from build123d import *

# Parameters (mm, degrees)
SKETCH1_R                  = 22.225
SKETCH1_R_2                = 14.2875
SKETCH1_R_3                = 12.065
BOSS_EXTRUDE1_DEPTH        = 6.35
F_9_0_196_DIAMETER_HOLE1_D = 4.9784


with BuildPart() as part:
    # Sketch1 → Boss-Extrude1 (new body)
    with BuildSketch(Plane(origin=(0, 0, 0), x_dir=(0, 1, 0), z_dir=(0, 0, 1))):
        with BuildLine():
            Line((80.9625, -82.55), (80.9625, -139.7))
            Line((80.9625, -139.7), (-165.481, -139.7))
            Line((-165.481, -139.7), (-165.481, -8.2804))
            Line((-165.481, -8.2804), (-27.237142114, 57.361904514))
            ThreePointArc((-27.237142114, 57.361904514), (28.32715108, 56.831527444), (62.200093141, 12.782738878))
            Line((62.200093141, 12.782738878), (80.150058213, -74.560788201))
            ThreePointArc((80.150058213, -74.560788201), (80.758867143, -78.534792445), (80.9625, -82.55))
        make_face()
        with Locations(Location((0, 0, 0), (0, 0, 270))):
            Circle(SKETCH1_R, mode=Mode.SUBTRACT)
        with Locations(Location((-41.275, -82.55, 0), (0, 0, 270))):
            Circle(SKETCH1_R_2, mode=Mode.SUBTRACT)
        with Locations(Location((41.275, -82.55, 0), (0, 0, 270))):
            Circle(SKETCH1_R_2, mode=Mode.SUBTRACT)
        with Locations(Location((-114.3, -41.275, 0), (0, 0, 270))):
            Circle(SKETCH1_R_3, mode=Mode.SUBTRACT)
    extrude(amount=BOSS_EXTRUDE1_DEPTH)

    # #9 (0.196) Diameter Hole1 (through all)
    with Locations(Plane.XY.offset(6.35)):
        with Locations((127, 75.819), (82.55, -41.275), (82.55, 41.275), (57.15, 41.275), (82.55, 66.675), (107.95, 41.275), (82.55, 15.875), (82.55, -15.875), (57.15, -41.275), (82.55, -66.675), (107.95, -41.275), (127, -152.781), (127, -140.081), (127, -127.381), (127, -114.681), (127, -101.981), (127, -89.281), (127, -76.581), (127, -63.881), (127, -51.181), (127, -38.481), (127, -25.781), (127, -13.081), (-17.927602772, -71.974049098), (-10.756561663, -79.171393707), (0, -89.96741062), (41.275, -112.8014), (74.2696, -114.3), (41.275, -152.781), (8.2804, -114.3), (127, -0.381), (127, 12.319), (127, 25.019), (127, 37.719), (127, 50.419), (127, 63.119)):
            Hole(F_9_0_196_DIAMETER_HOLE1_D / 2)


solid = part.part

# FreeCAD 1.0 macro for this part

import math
import FreeCAD as App
import Part
import Sketcher
Q = App.Units.Quantity

doc = App.newDocument("Part")
body = doc.addObject("PartDesign::Body", "Body")

# Sketch on XY plane
sketch1 = body.newObject("Sketcher::SketchObject", "Sketch")
sketch1.AttachmentSupport = (doc.getObject("XY_Plane"), [""])
sketch1.MapMode = "FlatFace"
sketch1.addGeometry([
    Part.LineSegment(App.Vector(139.7, 80.9625, 0), App.Vector(82.55, 80.9625, 0)),  # 0
    Part.ArcOfCircle(Part.Circle(App.Vector(82.55, 41.275, 0), App.Vector(0, 0, 1), 39.6875), math.radians(90), math.radians(101.613164)),  # 1
    Part.LineSegment(App.Vector(74.560788, 80.150058, 0), App.Vector(-12.782739, 62.200093, 0)),  # 2
    Part.ArcOfCircle(Part.Circle(App.Vector(0, 0, 0), App.Vector(0, 0, 1), 63.5), math.radians(101.613164), math.radians(205.399761)),  # 3
    Part.LineSegment(App.Vector(-57.361905, -27.237142, 0), App.Vector(8.2804, -165.481, 0)),  # 4
    Part.LineSegment(App.Vector(8.2804, -165.481, 0), App.Vector(139.7, -165.481, 0)),  # 5
    Part.LineSegment(App.Vector(139.7, -165.481, 0), App.Vector(139.7, 80.9625, 0)),  # 6
    Part.Circle(App.Vector(82.55, 41.275, 0), App.Vector(0, 0, 1), 14.2875),  # 7
    Part.Circle(App.Vector(82.55, -41.275, 0), App.Vector(0, 0, 1), 14.2875),  # 8
    Part.Circle(App.Vector(41.275, -114.3, 0), App.Vector(0, 0, 1), 12.065),  # 9
    Part.Circle(App.Vector(0, 0, 0), App.Vector(0, 0, 1), 22.225),  # 10
], False)
sketch1.addConstraint([
    Sketcher.Constraint("Tangent", 0, 2, 1, 1),
    Sketcher.Constraint("Tangent", 1, 2, 2, 1),
    Sketcher.Constraint("Tangent", 2, 2, 3, 1),
    Sketcher.Constraint("Tangent", 3, 2, 4, 1),
    Sketcher.Constraint("Coincident", 4, 2, 5, 1),
    Sketcher.Constraint("Coincident", 5, 2, 6, 1),
    Sketcher.Constraint("Coincident", 6, 2, 0, 1),
    Sketcher.Constraint("Horizontal", 0),
    Sketcher.Constraint("Horizontal", 5),
    Sketcher.Constraint("Vertical", 6),
    Sketcher.Constraint("Coincident", 3, 3, -1, 1),
    Sketcher.Constraint("Coincident", 10, 3, -1, 1),
    Sketcher.Constraint("Coincident", 7, 3, 1, 3),
    Sketcher.Constraint("Equal", 7, 8),
    Sketcher.Constraint("Symmetric", 1, 3, 8, 3, -1),
    Sketcher.Constraint("Radius", 3, Q("2.5 in")),
    Sketcher.Constraint("Diameter", 9, Q("0.95 in")),
    Sketcher.Constraint("Diameter", 10, Q("1.75 in")),
    Sketcher.Constraint("Diameter", 7, Q("1.125 in")),
    Sketcher.Constraint("Radius", 1, Q("1.5625 in")),
    Sketcher.Constraint("DistanceX", 0, 2, 0, 1, Q("2.25 in")),
    Sketcher.Constraint("DistanceY", 9, 3, -1, 1, Q("4.5 in")),
    Sketcher.Constraint("DistanceX", -1, 1, 5, 2, Q("5.5 in")),
    Sketcher.Constraint("DistanceX", 5, 1, 5, 2, Q("5.174 in")),
    Sketcher.Constraint("DistanceY", 8, 3, 7, 3, Q("3.25 in")),
    Sketcher.Constraint("DistanceY", 4, 2, 8, 3, Q("4.89 in")),
    Sketcher.Constraint("DistanceX", -1, 1, 9, 3, Q("1.625 in")),
])
pad1 = body.newObject("PartDesign::Pad", "Pad")
pad1.Profile = sketch1
pad1.Length = Q("0.25 in")

# Sketch on XY plane
sketch2 = body.newObject("Sketcher::SketchObject", "Sketch001")
sketch2.AttachmentSupport = (doc.getObject("XY_Plane"), [""])
sketch2.MapMode = "FlatFace"
sketch2.AttachmentOffset = App.Placement(App.Vector(0, 0, 0.25 * 25.4), App.Rotation())
sketch2.addGeometry([
    Part.Circle(App.Vector(127, 75.819, 0), App.Vector(0, 0, 1), 2.4892),  # 0
    Part.Circle(App.Vector(82.55, -41.275, 0), App.Vector(0, 0, 1), 2.4892),  # 1
    Part.Circle(App.Vector(82.55, 41.275, 0), App.Vector(0, 0, 1), 2.4892),  # 2
    Part.Circle(App.Vector(57.15, 41.275, 0), App.Vector(0, 0, 1), 2.4892),  # 3
    Part.Circle(App.Vector(82.55, 66.675, 0), App.Vector(0, 0, 1), 2.4892),  # 4
    Part.Circle(App.Vector(107.95, 41.275, 0), App.Vector(0, 0, 1), 2.4892),  # 5
    Part.Circle(App.Vector(82.55, 15.875, 0), App.Vector(0, 0, 1), 2.4892),  # 6
    Part.Circle(App.Vector(82.55, -15.875, 0), App.Vector(0, 0, 1), 2.4892),  # 7
    Part.Circle(App.Vector(57.15, -41.275, 0), App.Vector(0, 0, 1), 2.4892),  # 8
    Part.Circle(App.Vector(82.55, -66.675, 0), App.Vector(0, 0, 1), 2.4892),  # 9
    Part.Circle(App.Vector(107.95, -41.275, 0), App.Vector(0, 0, 1), 2.4892),  # 10
    Part.Circle(App.Vector(127, -152.781, 0), App.Vector(0, 0, 1), 2.4892),  # 11
    Part.Circle(App.Vector(127, -140.081, 0), App.Vector(0, 0, 1), 2.4892),  # 12
    Part.Circle(App.Vector(127, -127.381, 0), App.Vector(0, 0, 1), 2.4892),  # 13
    Part.Circle(App.Vector(127, -114.681, 0), App.Vector(0, 0, 1), 2.4892),  # 14
    Part.Circle(App.Vector(127, -101.981, 0), App.Vector(0, 0, 1), 2.4892),  # 15
    Part.Circle(App.Vector(127, -89.281, 0), App.Vector(0, 0, 1), 2.4892),  # 16
    Part.Circle(App.Vector(127, -76.581, 0), App.Vector(0, 0, 1), 2.4892),  # 17
    Part.Circle(App.Vector(127, -63.881, 0), App.Vector(0, 0, 1), 2.4892),  # 18
    Part.Circle(App.Vector(127, -51.181, 0), App.Vector(0, 0, 1), 2.4892),  # 19
    Part.Circle(App.Vector(127, -38.481, 0), App.Vector(0, 0, 1), 2.4892),  # 20
    Part.Circle(App.Vector(127, -25.781, 0), App.Vector(0, 0, 1), 2.4892),  # 21
    Part.Circle(App.Vector(127, -13.081, 0), App.Vector(0, 0, 1), 2.4892),  # 22
    Part.Circle(App.Vector(-17.927603, -71.974049, 0), App.Vector(0, 0, 1), 2.4892),  # 23
    Part.Circle(App.Vector(-10.756562, -79.171394, 0), App.Vector(0, 0, 1), 2.4892),  # 24
    Part.Circle(App.Vector(0, -89.967411, 0), App.Vector(0, 0, 1), 2.4892),  # 25
    Part.Circle(App.Vector(41.275, -112.8014, 0), App.Vector(0, 0, 1), 2.4892),  # 26
    Part.Circle(App.Vector(74.2696, -114.3, 0), App.Vector(0, 0, 1), 2.4892),  # 27
    Part.Circle(App.Vector(41.275, -152.781, 0), App.Vector(0, 0, 1), 2.4892),  # 28
    Part.Circle(App.Vector(8.2804, -114.3, 0), App.Vector(0, 0, 1), 2.4892),  # 29
    Part.Circle(App.Vector(127, -0.381, 0), App.Vector(0, 0, 1), 2.4892),  # 30
    Part.Circle(App.Vector(127, 12.319, 0), App.Vector(0, 0, 1), 2.4892),  # 31
    Part.Circle(App.Vector(127, 25.019, 0), App.Vector(0, 0, 1), 2.4892),  # 32
    Part.Circle(App.Vector(127, 37.719, 0), App.Vector(0, 0, 1), 2.4892),  # 33
    Part.Circle(App.Vector(127, 50.419, 0), App.Vector(0, 0, 1), 2.4892),  # 34
    Part.Circle(App.Vector(127, 63.119, 0), App.Vector(0, 0, 1), 2.4892),  # 35
], False)
sketch2.addConstraint([
    Sketcher.Constraint("Equal", 0, 1),
    Sketcher.Constraint("Equal", 1, 2),
    Sketcher.Constraint("Equal", 2, 3),
    Sketcher.Constraint("Equal", 3, 4),
    Sketcher.Constraint("Equal", 4, 5),
    Sketcher.Constraint("Equal", 5, 6),
    Sketcher.Constraint("Equal", 6, 7),
    Sketcher.Constraint("Equal", 7, 8),
    Sketcher.Constraint("Equal", 8, 9),
    Sketcher.Constraint("Equal", 9, 10),
    Sketcher.Constraint("Equal", 10, 11),
    Sketcher.Constraint("Equal", 11, 12),
    Sketcher.Constraint("Equal", 12, 13),
    Sketcher.Constraint("Equal", 13, 14),
    Sketcher.Constraint("Equal", 14, 15),
    Sketcher.Constraint("Equal", 15, 16),
    Sketcher.Constraint("Equal", 16, 17),
    Sketcher.Constraint("Equal", 17, 18),
    Sketcher.Constraint("Equal", 18, 19),
    Sketcher.Constraint("Equal", 19, 20),
    Sketcher.Constraint("Equal", 20, 21),
    Sketcher.Constraint("Equal", 21, 22),
    Sketcher.Constraint("Equal", 22, 23),
    Sketcher.Constraint("Equal", 23, 24),
    Sketcher.Constraint("Equal", 24, 25),
    Sketcher.Constraint("Equal", 25, 26),
    Sketcher.Constraint("Equal", 26, 27),
    Sketcher.Constraint("Equal", 27, 28),
    Sketcher.Constraint("Equal", 28, 29),
    Sketcher.Constraint("Equal", 29, 30),
    Sketcher.Constraint("Equal", 30, 31),
    Sketcher.Constraint("Equal", 31, 32),
    Sketcher.Constraint("Equal", 32, 33),
    Sketcher.Constraint("Equal", 33, 34),
    Sketcher.Constraint("Equal", 34, 35),
    Sketcher.Constraint("Symmetric", 1, 3, 2, 3, -1),
    Sketcher.Constraint("Symmetric", 6, 3, 7, 3, -1),
    Sketcher.Constraint("Symmetric", 3, 3, 8, 3, -1),
    Sketcher.Constraint("Symmetric", 4, 3, 9, 3, -1),
    Sketcher.Constraint("Symmetric", 5, 3, 10, 3, -1),
    Sketcher.Constraint("PointOnObject", 25, 3, -2),
    Sketcher.Constraint("Horizontal", 2, 3, 3, 3),
    Sketcher.Constraint("Horizontal", 3, 3, 5, 3),
    Sketcher.Constraint("Horizontal", 11, 3, 28, 3),
    Sketcher.Constraint("Horizontal", 27, 3, 29, 3),
    Sketcher.Constraint("Vertical", 2, 3, 4, 3),
    Sketcher.Constraint("Vertical", 4, 3, 6, 3),
    Sketcher.Constraint("Vertical", 0, 3, 11, 3),
    Sketcher.Constraint("Vertical", 11, 3, 12, 3),
    Sketcher.Constraint("Vertical", 12, 3, 13, 3),
    Sketcher.Constraint("Vertical", 13, 3, 14, 3),
    Sketcher.Constraint("Vertical", 14, 3, 15, 3),
    Sketcher.Constraint("Vertical", 15, 3, 16, 3),
    Sketcher.Constraint("Vertical", 16, 3, 17, 3),
    Sketcher.Constraint("Vertical", 17, 3, 18, 3),
    Sketcher.Constraint("Vertical", 18, 3, 19, 3),
    Sketcher.Constraint("Vertical", 19, 3, 20, 3),
    Sketcher.Constraint("Vertical", 20, 3, 21, 3),
    Sketcher.Constraint("Vertical", 21, 3, 22, 3),
    Sketcher.Constraint("Vertical", 26, 3, 28, 3),
    Sketcher.Constraint("Vertical", 22, 3, 30, 3),
    Sketcher.Constraint("Vertical", 30, 3, 31, 3),
    Sketcher.Constraint("Vertical", 31, 3, 32, 3),
    Sketcher.Constraint("Vertical", 32, 3, 33, 3),
    Sketcher.Constraint("Vertical", 33, 3, 34, 3),
    Sketcher.Constraint("Vertical", 34, 3, 35, 3),
    Sketcher.Constraint("Diameter", 0, Q("0.196 in")),
    Sketcher.Constraint("DistanceX", -1, 1, 0, 3, Q("5 in")),
    Sketcher.Constraint("DistanceX", 3, 3, 2, 3, Q("1 in")),
    Sketcher.Constraint("DistanceY", 2, 3, 4, 3, Q("1 in")),
    Sketcher.Constraint("DistanceX", 2, 3, 5, 3, Q("1 in")),
    Sketcher.Constraint("DistanceY", 6, 3, 2, 3, Q("1 in")),
    Sketcher.Constraint("DistanceY", 11, 3, 13, 3, Q("1 in")),
    Sketcher.Constraint("DistanceY", 12, 3, 14, 3, Q("1 in")),
    Sketcher.Constraint("DistanceY", 13, 3, 15, 3, Q("1 in")),
    Sketcher.Constraint("DistanceY", 14, 3, 16, 3, Q("1 in")),
    Sketcher.Constraint("DistanceY", 15, 3, 17, 3, Q("1 in")),
    Sketcher.Constraint("DistanceY", 16, 3, 18, 3, Q("1 in")),
    Sketcher.Constraint("DistanceY", 17, 3, 19, 3, Q("1 in")),
    Sketcher.Constraint("DistanceY", 18, 3, 20, 3, Q("1 in")),
    Sketcher.Constraint("DistanceY", 19, 3, 21, 3, Q("1 in")),
    Sketcher.Constraint("DistanceY", 20, 3, 22, 3, Q("1 in")),
    Sketcher.Constraint("DistanceY", 21, 3, 30, 3, Q("1 in")),
    Sketcher.Constraint("DistanceY", 22, 3, 31, 3, Q("1 in")),
    Sketcher.Constraint("DistanceY", 30, 3, 32, 3, Q("1 in")),
    Sketcher.Constraint("DistanceY", 31, 3, 33, 3, Q("1 in")),
    Sketcher.Constraint("DistanceY", 32, 3, 34, 3, Q("1 in")),
    Sketcher.Constraint("DistanceY", 34, 3, 0, 3, Q("1 in")),
    Sketcher.Constraint("DistanceY", 33, 3, 35, 3, Q("1 in")),
    Sketcher.Constraint("DistanceY", 27, 3, -1, 1, Q("4.5 in")),
    Sketcher.Constraint("DistanceY", 11, 3, 12, 3, Q("0.5 in")),
    Sketcher.Constraint("DistanceX", -1, 1, 1, 3, Q("3.25 in")),
    Sketcher.Constraint("DistanceY", 1, 3, 0, 3, Q("4.61 in")),
    Sketcher.Constraint("DistanceY", 2, 3, 0, 3, Q("1.36 in")),
    Sketcher.Constraint("DistanceX", -1, 1, 26, 3, Q("1.625 in")),
    Sketcher.Constraint("DistanceY", 26, 3, -1, 1, Q("4.441 in")),
    Sketcher.Constraint("DistanceX", -1, 1, 27, 3, Q("2.924 in")),
    Sketcher.Constraint("DistanceX", -1, 1, 29, 3, Q("0.326 in")),
    Sketcher.Constraint("DistanceY", 25, 3, 23, 3, Q("0.7084001 in")),
    Sketcher.Constraint("DistanceY", 23, 3, -1, 1, Q("71.974049 mm")),
    Sketcher.Constraint("DistanceX", 24, 3, -1, 1, Q("10.756562 mm")),
    Sketcher.Constraint("DistanceX", 23, 3, 24, 3, Q("7.171041 mm")),
    Sketcher.Constraint("DistanceY", 24, 3, -1, 1, Q("79.171394 mm")),
])
doc.recompute()
hole = body.newObject("PartDesign::Hole", "Hole")
hole.Profile = sketch2
hole.ThreadType = "None"
hole.Diameter = Q("0.196 in")
hole.DepthType = "ThroughAll"

doc.recompute()
